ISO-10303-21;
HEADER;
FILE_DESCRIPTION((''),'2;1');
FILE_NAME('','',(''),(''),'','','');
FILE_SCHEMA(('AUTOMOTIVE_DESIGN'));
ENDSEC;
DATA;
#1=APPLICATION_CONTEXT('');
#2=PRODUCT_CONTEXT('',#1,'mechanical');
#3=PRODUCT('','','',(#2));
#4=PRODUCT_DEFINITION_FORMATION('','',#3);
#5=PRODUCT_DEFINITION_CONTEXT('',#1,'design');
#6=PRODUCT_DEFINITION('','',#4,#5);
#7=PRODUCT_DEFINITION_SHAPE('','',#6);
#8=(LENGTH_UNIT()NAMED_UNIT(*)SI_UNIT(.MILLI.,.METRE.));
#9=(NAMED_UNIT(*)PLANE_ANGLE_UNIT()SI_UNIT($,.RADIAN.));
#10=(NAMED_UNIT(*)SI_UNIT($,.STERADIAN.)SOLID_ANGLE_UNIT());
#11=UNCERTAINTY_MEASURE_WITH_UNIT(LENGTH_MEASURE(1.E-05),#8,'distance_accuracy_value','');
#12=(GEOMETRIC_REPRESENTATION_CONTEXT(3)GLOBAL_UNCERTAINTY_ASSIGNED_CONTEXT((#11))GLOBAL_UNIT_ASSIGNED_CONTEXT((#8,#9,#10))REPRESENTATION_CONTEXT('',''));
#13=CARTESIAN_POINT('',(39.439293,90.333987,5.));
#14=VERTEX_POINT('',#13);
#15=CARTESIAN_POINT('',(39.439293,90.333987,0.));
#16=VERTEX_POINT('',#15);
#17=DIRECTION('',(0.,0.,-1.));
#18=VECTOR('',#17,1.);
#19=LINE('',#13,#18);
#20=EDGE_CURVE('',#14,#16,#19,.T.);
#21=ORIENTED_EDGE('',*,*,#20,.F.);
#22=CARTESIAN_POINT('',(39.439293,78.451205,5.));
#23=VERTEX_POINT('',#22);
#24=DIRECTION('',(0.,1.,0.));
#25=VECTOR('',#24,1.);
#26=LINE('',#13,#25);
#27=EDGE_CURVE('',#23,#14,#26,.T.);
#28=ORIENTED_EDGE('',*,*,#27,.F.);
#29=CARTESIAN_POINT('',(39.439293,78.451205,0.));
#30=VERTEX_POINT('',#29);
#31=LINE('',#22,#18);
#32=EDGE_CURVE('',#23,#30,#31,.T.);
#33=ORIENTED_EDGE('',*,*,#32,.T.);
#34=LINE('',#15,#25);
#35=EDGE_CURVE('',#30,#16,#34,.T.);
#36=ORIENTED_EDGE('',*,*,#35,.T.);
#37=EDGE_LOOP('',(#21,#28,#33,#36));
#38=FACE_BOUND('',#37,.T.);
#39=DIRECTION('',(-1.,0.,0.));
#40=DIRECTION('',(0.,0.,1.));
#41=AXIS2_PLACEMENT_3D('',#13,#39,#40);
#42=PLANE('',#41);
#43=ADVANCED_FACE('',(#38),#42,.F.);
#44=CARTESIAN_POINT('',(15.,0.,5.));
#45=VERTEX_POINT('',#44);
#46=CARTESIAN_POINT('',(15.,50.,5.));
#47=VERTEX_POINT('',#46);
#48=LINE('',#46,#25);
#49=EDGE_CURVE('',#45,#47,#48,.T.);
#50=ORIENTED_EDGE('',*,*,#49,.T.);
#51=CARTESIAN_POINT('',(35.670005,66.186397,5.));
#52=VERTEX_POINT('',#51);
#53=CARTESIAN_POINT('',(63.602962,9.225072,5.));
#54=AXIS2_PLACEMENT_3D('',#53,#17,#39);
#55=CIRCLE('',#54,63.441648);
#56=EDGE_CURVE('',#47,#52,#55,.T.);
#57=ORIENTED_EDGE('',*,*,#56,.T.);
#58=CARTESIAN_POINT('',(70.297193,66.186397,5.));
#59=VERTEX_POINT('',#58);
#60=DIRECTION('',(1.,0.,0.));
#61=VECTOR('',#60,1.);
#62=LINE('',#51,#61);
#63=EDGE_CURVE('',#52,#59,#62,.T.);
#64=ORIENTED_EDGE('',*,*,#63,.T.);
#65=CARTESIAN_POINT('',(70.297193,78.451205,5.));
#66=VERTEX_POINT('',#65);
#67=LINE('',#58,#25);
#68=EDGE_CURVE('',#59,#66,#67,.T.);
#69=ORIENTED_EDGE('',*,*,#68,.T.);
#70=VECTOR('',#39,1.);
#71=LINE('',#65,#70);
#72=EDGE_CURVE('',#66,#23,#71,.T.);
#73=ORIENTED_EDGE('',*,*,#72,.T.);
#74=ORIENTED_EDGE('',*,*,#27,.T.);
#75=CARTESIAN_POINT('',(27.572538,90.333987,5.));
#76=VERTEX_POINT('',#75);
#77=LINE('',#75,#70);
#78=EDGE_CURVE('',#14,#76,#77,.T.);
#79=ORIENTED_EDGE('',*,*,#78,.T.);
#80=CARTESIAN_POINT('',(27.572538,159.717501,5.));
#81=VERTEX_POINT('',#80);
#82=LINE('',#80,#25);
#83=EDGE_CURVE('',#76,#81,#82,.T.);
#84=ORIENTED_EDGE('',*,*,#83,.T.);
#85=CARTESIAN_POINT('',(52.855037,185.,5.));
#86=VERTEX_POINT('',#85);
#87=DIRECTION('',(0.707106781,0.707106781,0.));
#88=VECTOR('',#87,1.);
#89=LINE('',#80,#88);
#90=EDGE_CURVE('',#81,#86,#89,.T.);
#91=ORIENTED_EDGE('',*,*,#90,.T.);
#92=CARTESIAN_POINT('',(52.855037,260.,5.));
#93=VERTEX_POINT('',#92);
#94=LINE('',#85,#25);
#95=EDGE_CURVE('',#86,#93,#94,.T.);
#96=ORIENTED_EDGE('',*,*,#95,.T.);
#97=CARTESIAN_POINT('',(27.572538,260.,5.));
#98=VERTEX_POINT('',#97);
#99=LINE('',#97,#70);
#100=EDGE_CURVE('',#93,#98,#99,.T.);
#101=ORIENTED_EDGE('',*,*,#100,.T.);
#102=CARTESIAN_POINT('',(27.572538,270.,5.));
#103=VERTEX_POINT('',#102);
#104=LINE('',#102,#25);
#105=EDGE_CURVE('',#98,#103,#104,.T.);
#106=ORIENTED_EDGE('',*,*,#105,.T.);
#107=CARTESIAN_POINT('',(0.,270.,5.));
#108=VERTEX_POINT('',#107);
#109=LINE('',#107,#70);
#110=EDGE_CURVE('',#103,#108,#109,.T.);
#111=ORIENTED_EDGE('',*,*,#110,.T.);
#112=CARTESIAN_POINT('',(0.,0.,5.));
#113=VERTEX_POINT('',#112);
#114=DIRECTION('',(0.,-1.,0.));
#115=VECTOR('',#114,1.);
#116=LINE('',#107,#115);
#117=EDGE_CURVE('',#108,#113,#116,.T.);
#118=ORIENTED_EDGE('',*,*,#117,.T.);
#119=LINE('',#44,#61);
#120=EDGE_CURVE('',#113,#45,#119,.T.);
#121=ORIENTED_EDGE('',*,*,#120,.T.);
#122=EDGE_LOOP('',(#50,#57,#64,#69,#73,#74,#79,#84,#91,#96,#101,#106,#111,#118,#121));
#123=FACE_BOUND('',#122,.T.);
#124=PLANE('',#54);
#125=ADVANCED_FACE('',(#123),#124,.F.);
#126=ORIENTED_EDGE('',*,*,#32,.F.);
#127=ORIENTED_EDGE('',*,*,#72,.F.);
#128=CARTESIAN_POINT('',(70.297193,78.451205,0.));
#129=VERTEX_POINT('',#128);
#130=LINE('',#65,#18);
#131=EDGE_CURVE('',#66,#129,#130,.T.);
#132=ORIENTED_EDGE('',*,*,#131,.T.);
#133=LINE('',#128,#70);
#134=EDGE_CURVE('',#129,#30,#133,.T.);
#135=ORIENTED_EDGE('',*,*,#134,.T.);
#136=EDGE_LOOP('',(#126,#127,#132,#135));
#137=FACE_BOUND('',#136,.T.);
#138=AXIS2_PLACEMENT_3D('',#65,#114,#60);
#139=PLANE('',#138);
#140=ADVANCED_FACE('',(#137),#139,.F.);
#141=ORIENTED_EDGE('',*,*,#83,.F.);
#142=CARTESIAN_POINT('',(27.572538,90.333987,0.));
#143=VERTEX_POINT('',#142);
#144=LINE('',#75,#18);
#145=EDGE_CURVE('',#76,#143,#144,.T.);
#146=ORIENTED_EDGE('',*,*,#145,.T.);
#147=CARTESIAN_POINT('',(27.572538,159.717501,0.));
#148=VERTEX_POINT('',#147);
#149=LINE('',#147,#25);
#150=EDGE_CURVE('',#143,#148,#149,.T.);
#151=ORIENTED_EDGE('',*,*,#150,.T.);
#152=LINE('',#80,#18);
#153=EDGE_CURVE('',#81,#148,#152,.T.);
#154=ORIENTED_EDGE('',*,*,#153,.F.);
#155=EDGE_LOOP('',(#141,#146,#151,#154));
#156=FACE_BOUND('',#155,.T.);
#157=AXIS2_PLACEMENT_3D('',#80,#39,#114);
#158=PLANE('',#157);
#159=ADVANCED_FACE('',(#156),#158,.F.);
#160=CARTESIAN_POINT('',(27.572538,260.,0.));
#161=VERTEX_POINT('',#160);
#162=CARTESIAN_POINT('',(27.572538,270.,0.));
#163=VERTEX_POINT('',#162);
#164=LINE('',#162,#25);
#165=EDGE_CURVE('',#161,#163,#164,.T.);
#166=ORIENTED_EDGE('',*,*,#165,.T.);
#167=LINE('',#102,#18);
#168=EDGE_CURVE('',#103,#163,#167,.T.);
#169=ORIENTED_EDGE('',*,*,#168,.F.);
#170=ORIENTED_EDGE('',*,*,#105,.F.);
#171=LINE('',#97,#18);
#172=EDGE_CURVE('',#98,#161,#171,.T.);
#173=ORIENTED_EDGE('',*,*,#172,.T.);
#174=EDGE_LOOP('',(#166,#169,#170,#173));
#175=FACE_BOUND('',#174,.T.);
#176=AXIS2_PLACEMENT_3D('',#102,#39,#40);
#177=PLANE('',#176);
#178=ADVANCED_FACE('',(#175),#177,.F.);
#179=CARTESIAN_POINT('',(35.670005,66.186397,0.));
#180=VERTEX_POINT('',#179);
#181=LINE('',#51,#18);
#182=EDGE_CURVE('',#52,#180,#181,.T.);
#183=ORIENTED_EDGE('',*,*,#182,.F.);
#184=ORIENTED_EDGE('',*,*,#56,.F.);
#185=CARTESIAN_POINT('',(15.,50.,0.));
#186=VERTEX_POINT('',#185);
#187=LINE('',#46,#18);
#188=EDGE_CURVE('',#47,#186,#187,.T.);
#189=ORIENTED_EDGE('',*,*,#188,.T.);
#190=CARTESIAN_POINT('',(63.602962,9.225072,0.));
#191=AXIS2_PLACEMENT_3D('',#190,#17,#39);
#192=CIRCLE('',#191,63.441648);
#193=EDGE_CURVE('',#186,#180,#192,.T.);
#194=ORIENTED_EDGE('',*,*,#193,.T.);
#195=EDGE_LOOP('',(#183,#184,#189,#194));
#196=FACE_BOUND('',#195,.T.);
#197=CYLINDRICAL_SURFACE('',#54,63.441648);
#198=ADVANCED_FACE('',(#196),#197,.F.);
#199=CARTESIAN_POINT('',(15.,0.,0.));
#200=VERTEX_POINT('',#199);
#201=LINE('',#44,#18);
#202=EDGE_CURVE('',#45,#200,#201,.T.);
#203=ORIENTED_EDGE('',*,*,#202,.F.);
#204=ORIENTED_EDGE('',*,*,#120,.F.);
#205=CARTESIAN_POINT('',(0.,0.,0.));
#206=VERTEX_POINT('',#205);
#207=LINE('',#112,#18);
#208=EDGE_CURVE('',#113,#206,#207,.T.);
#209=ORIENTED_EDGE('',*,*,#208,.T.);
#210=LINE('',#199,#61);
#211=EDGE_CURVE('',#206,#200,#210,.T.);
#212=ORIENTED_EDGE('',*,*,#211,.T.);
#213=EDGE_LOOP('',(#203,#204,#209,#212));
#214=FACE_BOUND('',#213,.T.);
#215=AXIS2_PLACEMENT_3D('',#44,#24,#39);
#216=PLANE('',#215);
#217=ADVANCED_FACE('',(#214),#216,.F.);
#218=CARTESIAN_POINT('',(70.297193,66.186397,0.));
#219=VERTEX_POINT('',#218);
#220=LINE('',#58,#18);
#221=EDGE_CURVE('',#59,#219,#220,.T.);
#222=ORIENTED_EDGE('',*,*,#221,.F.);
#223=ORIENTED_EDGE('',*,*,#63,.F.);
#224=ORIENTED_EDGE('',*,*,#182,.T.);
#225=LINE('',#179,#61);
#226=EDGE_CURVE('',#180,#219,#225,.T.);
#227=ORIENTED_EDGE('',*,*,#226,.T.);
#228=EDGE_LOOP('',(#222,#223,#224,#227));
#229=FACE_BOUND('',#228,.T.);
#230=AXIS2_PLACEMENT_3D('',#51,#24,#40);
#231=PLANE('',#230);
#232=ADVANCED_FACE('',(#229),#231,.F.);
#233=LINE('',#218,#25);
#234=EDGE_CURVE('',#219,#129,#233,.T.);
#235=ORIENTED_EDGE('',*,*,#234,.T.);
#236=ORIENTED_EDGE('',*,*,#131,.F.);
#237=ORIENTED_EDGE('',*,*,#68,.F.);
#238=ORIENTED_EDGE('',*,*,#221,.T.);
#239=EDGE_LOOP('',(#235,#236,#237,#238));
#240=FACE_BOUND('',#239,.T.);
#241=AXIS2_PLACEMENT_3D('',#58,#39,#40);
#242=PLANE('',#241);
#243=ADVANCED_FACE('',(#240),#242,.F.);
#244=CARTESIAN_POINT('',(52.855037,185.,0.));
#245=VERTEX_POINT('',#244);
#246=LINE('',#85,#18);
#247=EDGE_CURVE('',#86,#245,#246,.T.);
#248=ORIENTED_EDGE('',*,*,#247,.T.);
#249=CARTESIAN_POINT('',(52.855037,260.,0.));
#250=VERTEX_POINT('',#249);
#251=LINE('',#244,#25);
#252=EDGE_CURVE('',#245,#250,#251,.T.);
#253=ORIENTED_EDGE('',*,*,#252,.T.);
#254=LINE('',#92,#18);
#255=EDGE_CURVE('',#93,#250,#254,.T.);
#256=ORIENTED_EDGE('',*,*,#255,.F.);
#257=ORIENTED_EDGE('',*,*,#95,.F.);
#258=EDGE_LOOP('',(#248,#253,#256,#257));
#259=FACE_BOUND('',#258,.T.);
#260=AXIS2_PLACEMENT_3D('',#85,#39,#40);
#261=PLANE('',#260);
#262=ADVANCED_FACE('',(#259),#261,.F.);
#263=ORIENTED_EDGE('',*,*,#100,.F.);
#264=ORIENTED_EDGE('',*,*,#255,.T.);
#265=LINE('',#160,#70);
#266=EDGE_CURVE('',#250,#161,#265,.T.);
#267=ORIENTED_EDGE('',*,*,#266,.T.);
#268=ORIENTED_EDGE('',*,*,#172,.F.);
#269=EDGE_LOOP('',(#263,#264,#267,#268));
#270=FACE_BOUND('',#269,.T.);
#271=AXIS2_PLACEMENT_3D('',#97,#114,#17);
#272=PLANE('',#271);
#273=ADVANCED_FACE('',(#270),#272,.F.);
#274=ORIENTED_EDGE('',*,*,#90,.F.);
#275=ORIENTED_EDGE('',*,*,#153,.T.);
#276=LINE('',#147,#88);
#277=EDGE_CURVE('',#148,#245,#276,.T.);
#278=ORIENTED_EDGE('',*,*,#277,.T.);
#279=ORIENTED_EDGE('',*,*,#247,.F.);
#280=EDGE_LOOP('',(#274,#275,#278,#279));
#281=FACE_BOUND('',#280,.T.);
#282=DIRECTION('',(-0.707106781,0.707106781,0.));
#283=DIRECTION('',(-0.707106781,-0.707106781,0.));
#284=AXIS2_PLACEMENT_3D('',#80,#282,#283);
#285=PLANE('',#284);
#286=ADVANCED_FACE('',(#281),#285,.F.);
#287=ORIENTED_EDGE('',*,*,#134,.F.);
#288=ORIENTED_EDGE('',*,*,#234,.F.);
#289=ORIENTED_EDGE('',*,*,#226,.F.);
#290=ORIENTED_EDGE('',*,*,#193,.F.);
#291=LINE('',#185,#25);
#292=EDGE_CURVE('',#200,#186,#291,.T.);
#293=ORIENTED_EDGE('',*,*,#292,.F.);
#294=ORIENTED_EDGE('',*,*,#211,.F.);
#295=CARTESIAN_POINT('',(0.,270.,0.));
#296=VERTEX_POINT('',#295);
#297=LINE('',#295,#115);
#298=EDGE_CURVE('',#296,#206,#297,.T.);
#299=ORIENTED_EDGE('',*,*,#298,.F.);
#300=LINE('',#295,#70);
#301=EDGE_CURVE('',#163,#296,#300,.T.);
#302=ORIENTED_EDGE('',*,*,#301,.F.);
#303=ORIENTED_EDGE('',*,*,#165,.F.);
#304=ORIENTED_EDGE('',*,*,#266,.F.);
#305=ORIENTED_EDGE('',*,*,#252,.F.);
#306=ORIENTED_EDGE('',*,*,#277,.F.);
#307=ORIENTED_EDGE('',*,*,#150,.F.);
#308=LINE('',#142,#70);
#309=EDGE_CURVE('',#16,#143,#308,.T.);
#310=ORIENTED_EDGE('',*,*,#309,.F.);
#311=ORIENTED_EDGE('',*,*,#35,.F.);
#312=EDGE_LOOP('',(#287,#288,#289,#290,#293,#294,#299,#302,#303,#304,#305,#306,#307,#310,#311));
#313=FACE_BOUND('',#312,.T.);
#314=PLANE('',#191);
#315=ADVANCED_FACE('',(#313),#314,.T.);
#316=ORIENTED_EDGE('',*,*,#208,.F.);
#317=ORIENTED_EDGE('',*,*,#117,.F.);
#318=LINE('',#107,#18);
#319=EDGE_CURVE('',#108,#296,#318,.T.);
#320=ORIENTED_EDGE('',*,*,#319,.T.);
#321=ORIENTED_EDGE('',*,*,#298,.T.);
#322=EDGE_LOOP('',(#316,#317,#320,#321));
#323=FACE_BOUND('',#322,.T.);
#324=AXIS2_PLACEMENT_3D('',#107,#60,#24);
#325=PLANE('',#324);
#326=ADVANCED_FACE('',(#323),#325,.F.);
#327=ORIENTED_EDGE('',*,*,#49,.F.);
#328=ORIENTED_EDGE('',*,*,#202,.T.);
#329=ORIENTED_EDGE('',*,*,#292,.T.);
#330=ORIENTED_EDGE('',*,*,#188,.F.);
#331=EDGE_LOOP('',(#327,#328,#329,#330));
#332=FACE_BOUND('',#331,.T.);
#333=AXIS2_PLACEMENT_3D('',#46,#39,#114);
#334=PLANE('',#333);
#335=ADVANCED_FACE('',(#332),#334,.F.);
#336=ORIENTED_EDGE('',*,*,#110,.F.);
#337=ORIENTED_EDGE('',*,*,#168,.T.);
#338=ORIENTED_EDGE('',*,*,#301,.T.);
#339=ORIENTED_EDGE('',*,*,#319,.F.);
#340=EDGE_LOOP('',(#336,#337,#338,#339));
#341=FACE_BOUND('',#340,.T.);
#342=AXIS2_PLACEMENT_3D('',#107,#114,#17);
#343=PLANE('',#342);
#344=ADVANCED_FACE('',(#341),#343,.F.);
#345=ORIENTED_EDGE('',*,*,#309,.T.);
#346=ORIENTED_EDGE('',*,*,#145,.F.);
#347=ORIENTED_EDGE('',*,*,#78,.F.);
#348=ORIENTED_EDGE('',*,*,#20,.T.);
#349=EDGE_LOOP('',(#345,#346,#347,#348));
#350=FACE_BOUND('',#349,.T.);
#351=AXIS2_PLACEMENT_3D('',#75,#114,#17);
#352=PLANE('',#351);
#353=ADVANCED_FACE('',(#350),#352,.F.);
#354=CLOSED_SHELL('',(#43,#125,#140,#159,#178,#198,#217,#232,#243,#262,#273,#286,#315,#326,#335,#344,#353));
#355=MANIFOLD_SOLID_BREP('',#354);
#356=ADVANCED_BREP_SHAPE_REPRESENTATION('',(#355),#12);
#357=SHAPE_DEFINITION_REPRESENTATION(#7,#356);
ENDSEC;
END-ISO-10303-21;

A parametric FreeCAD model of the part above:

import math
import FreeCAD as App
import Part
import Sketcher

V = App.Vector
Q = App.Units.Quantity

doc = App.newDocument("Part")
body = doc.addObject("PartDesign::Body", "Body")

# Sketch on XY plane
sketch1 = doc.addObject("Sketcher::SketchObject", "Sketch")
body.addObject(sketch1)
sketch1.AttachmentSupport = (doc.XY_Plane, [""])
sketch1.MapMode = "FlatFace"
sketch1.addGeometry([
    Part.LineSegment(V(70, 66, 0), V(70, 78, 0)),  # 0
    Part.LineSegment(V(70, 78, 0), V(39, 78, 0)),  # 1
    Part.LineSegment(V(39, 78, 0), V(39, 90, 0)),  # 2
    Part.LineSegment(V(39, 90, 0), V(28, 90, 0)),  # 3
    Part.LineSegment(V(28, 90, 0), V(28, 160, 0)),  # 4
    Part.LineSegment(V(28, 160, 0), V(53, 185, 0)),  # 5
    Part.LineSegment(V(53, 185, 0), V(53, 260, 0)),  # 6
    Part.LineSegment(V(53, 260, 0), V(28, 260, 0)),  # 7
    Part.LineSegment(V(28, 260, 0), V(28, 270, 0)),  # 8
    Part.LineSegment(V(28, 270, 0), V(0, 270, 0)),  # 9
    Part.LineSegment(V(0, 270, 0), V(0, 0, 0)),  # 10
    Part.LineSegment(V(0, 0, 0), V(15, 0, 0)),  # 11
    Part.LineSegment(V(15, 0, 0), V(15, 50, 0)),  # 12
    Part.ArcOfCircle(Part.Circle(V(64, 9, 0), V(0, 0, 1), 63), math.radians(116), math.radians(140)),  # 13
    Part.LineSegment(V(36, 66, 0), V(70, 66, 0)),  # 14
], False)
sketch1.addConstraint([
    Sketcher.Constraint("Coincident", 0, 2, 1, 1),
    Sketcher.Constraint("Coincident", 1, 2, 2, 1),
    Sketcher.Constraint("Coincident", 2, 2, 3, 1),
    Sketcher.Constraint("Coincident", 3, 2, 4, 1),
    Sketcher.Constraint("Coincident", 4, 2, 5, 1),
    Sketcher.Constraint("Coincident", 5, 2, 6, 1),
    Sketcher.Constraint("Coincident", 6, 2, 7, 1),
    Sketcher.Constraint("Coincident", 7, 2, 8, 1),
    Sketcher.Constraint("Coincident", 8, 2, 9, 1),
    Sketcher.Constraint("Coincident", 9, 2, 10, 1),
    Sketcher.Constraint("Coincident", 10, 2, 11, 1),
    Sketcher.Constraint("Coincident", 11, 2, 12, 1),
    Sketcher.Constraint("Coincident", 12, 2, 13, 2),
    Sketcher.Constraint("Coincident", 13, 1, 14, 1),
    Sketcher.Constraint("Coincident", 14, 2, 0, 1),
    Sketcher.Constraint("Vertical", 0),
    Sketcher.Constraint("Horizontal", 1),
    Sketcher.Constraint("Vertical", 2),
    Sketcher.Constraint("Horizontal", 3),
    Sketcher.Constraint("Vertical", 4),
    Sketcher.Constraint("Vertical", 6),
    Sketcher.Constraint("Horizontal", 7),
    Sketcher.Constraint("Vertical", 8),
    Sketcher.Constraint("Horizontal", 9),
    Sketcher.Constraint("Vertical", 10),
    Sketcher.Constraint("Horizontal", 11),
    Sketcher.Constraint("Vertical", 12),
    Sketcher.Constraint("Horizontal", 14),
    Sketcher.Constraint("Coincident", 10, 2, -1, 1),
    Sketcher.Constraint("Vertical", 4, 2, 7, 2),
    Sketcher.Constraint("DistanceX", 11, 1, 11, 2, 15.0),
    Sketcher.Constraint("DistanceY", 6, 1, 6, 2, 75.0),
    Sketcher.Constraint("DistanceY", 8, 1, 8, 2, 10.0),
    Sketcher.Constraint("DistanceY", 10, 2, 10, 1, 270.0),
    Sketcher.Constraint("DistanceY", 12, 1, 12, 2, 50.0),
    Sketcher.Constraint("Angle", 5, Q("45 deg")),
    Sketcher.Constraint("DistanceX", 1, 2, 1, 1, 30.857899),
    Sketcher.Constraint("DistanceX", 7, 2, 7, 1, 25.282499),
    Sketcher.Constraint("Radius", 13, 63.441648),
    Sketcher.Constraint("DistanceX", 14, 1, 14, 2, 34.627188),
    Sketcher.Constraint("DistanceX", 3, 2, 3, 1, 11.866756),
    Sketcher.Constraint("DistanceX", 9, 2, 9, 1, 27.572538),
    Sketcher.Constraint("DistanceY", 0, 1, 0, 2, 12.264808),
    Sketcher.Constraint("DistanceY", 2, 1, 2, 2, 11.882782),
    Sketcher.Constraint("DistanceY", 4, 1, 4, 2, 69.383514),
])
pad1 = doc.addObject("PartDesign::Pad", "Pad")
body.addObject(pad1)
pad1.Profile = sketch1
pad1.Length = 5

doc.recompute()
